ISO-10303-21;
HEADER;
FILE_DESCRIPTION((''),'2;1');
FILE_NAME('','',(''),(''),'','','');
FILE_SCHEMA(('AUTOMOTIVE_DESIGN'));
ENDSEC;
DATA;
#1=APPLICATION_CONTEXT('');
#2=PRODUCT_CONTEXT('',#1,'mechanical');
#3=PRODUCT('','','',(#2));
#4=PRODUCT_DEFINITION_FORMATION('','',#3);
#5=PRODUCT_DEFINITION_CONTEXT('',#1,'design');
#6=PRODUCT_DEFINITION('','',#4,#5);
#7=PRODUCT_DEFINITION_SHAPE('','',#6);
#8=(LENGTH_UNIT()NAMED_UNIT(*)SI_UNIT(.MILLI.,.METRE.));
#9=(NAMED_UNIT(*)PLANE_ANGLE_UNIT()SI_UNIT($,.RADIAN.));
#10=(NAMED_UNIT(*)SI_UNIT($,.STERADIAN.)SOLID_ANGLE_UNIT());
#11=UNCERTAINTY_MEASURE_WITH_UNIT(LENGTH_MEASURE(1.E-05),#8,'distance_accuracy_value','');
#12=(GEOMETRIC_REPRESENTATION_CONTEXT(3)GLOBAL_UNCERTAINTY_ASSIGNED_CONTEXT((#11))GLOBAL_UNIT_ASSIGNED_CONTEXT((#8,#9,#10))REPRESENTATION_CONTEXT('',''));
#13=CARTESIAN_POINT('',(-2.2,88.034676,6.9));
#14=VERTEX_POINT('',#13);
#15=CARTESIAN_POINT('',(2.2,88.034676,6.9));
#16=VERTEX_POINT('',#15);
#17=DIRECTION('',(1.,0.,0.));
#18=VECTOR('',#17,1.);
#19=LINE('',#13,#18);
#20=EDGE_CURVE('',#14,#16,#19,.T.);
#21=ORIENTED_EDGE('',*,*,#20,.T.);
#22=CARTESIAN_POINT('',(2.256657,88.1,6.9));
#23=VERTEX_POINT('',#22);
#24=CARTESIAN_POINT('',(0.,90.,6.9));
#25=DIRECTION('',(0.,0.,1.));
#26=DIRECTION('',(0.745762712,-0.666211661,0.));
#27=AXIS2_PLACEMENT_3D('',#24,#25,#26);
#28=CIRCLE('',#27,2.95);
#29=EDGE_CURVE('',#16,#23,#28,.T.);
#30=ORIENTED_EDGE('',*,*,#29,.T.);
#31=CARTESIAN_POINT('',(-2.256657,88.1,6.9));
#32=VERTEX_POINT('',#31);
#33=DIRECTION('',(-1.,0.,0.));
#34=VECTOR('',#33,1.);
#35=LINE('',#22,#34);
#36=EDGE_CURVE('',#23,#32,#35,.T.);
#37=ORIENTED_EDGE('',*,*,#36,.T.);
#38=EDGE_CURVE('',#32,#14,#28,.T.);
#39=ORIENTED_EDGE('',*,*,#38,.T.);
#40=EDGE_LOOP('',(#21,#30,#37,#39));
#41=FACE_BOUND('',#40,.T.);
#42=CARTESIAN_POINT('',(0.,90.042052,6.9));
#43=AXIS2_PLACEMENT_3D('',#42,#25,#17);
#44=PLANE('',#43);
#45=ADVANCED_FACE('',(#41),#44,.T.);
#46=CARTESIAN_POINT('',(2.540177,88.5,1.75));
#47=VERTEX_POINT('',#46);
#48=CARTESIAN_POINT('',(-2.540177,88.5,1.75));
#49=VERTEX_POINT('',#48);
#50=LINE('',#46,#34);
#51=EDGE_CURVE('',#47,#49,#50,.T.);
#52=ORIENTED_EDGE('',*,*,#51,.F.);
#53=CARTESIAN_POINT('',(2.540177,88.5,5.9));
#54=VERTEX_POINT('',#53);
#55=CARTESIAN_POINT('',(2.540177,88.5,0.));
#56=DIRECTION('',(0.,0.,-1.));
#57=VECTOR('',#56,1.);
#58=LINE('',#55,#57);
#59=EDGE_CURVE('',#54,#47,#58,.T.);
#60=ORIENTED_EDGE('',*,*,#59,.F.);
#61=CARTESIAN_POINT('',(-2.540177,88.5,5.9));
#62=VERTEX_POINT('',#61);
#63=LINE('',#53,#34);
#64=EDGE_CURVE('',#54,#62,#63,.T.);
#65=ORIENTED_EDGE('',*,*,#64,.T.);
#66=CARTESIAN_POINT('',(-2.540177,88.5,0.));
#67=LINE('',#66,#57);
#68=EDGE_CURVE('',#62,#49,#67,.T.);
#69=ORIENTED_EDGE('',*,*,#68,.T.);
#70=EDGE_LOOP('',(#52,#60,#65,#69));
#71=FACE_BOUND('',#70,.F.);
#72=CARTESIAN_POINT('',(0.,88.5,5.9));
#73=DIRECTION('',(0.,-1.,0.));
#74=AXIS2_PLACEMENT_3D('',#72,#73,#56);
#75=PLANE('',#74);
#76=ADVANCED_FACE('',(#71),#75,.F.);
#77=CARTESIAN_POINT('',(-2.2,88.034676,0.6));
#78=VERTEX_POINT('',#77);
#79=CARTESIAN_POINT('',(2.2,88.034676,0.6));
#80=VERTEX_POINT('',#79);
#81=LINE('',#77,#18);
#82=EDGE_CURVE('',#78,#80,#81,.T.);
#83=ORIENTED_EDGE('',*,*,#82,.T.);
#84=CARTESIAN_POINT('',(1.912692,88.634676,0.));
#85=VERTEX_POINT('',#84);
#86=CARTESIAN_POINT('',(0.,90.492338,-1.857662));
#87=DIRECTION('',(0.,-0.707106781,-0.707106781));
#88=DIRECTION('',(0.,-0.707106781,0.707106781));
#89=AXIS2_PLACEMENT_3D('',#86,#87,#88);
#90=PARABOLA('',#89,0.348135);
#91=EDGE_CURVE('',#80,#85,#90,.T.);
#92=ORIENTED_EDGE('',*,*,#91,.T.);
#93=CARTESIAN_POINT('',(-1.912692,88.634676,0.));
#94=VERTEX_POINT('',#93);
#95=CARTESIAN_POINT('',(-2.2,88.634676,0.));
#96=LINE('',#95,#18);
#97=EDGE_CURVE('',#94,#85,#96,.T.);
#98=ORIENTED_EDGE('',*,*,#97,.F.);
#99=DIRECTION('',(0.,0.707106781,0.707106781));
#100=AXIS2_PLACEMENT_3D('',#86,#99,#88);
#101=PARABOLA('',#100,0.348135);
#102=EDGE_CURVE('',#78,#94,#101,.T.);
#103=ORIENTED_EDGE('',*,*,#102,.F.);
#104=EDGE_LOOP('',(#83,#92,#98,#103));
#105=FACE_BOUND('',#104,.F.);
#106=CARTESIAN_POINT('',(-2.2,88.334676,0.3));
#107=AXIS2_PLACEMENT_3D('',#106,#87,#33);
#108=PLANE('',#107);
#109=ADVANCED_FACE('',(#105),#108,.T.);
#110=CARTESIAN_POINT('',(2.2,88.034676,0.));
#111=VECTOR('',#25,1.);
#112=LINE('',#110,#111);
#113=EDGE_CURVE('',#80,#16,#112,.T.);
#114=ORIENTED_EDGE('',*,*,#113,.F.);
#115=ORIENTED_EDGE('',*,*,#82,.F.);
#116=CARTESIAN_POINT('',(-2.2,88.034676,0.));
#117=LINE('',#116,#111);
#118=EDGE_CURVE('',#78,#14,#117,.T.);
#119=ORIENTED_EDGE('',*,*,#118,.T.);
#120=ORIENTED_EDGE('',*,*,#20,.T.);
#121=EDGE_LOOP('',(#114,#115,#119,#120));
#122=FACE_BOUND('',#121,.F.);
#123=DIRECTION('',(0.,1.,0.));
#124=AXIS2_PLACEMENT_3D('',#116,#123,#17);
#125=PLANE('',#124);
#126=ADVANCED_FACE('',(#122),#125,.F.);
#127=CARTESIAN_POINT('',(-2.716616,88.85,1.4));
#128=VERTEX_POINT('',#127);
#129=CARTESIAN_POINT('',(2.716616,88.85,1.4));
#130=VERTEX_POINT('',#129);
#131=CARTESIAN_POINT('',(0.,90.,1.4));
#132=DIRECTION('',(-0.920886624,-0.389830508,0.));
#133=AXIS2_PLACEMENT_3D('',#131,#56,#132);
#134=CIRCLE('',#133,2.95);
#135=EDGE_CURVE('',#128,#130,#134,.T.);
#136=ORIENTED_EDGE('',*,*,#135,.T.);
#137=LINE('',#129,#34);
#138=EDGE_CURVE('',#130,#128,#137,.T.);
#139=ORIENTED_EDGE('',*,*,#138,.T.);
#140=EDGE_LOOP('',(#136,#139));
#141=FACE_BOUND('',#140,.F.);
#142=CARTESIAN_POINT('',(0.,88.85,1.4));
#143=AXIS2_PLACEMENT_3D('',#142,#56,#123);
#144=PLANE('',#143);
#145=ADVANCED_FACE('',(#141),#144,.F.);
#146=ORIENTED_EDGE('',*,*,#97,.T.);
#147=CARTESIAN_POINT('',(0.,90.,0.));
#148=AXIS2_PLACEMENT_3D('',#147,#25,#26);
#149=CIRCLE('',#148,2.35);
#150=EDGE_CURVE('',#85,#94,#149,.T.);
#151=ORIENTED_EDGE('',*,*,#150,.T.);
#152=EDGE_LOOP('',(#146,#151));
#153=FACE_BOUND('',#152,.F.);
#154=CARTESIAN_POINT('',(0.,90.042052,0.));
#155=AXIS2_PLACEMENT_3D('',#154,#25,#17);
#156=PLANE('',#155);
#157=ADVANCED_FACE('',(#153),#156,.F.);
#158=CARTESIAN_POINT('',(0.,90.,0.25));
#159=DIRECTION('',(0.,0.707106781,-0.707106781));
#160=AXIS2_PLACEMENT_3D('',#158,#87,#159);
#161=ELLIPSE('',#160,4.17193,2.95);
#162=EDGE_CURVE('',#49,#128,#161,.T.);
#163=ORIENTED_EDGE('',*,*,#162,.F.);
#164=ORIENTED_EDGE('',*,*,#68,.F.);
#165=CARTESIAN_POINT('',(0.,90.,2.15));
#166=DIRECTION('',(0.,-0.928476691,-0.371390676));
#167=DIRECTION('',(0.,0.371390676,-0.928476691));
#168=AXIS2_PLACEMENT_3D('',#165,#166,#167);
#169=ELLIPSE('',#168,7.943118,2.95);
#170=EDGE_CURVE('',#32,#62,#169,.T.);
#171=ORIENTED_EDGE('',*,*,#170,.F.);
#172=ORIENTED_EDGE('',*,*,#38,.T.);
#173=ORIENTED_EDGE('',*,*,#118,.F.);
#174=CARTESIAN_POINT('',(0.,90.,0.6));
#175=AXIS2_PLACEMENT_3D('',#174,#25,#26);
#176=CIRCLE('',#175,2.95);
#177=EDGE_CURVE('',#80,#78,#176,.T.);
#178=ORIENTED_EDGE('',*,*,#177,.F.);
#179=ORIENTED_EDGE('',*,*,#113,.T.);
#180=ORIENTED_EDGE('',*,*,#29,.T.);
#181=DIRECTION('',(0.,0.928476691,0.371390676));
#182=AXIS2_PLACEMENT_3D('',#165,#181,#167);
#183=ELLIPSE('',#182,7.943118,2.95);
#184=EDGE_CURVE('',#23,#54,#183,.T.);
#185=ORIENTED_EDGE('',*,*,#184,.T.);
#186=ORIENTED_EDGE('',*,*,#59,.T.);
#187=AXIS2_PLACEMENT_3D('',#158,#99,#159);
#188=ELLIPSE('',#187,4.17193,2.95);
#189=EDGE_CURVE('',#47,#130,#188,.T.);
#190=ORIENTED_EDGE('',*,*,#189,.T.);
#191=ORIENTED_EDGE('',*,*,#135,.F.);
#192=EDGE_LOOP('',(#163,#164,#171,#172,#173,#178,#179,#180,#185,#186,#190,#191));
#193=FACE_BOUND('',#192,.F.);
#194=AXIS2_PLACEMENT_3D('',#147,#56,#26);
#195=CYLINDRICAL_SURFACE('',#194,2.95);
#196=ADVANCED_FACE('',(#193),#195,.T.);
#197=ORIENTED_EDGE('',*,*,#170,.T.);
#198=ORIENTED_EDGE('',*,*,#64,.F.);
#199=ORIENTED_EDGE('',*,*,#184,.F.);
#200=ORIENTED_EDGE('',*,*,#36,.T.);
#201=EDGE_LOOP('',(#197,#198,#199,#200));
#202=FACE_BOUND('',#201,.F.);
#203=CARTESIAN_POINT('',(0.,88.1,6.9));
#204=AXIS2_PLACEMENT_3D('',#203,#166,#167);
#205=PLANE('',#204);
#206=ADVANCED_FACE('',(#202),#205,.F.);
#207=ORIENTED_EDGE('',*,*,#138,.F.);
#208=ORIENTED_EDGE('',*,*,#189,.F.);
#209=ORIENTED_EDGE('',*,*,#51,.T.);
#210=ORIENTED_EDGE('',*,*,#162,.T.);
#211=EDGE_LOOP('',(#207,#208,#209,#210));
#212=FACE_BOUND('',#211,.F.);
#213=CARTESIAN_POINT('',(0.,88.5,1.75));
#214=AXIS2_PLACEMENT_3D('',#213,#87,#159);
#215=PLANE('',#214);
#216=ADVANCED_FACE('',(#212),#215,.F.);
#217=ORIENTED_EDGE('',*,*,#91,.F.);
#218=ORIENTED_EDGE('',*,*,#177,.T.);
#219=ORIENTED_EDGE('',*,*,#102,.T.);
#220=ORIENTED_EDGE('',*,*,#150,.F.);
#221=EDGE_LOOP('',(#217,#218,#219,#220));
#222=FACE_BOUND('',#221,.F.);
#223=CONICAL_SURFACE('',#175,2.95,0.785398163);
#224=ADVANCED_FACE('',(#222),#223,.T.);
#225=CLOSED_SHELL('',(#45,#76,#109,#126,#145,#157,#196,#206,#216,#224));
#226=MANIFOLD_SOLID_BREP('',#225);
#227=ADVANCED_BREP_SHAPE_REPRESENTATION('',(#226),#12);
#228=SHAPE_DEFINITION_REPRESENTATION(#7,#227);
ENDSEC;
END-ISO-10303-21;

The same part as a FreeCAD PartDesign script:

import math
import FreeCAD as App
import Part
import Sketcher

V = App.Vector
Q = App.Units.Quantity


def edges_at(feature, points):
    """Names of the edges that pass closest to the given points."""
    edges = feature.Shape.Edges
    near = lambda p: min(range(len(edges)), key=lambda i: edges[i].distToShape(Part.Vertex(*p))[0])
    return sorted({f"Edge{near(p) + 1}" for p in points})


def add_polygon(sketch, points):
    """Adds a closed chain of lines whose ends are joined by coincident constraints."""
    first, n = sketch.GeometryCount, len(points)
    for a, b in zip(points, points[1:] + points[:1]):
        sketch.addGeometry(Part.LineSegment(App.Vector(*a, 0), App.Vector(*b, 0)), False)
    for i in range(n):
        sketch.addConstraint(Sketcher.Constraint("Coincident", first + i, 2, first + (i + 1) % n, 1))

doc = App.newDocument("Part")
body = doc.addObject("PartDesign::Body", "Body")

sketch1 = body.newObject("Sketcher::SketchObject", "Sketch")
sketch1.AttachmentSupport = (doc.getObject("XY_Plane"), [""])
sketch1.MapMode = "FlatFace"
sketch1.addGeometry(Part.ArcOfCircle(Part.Circle(V(0, 0, 0), V(0, 0, 1), 2.95), math.radians(-41.775348), math.radians(221.775348)), False)
sketch1.addGeometry(Part.LineSegment(V(-2.2, -1.965324, 0), V(2.2, -1.965324, 0)), False)
sketch1.addConstraint(Sketcher.Constraint("Coincident", 0, 1, 1, 2))
sketch1.addConstraint(Sketcher.Constraint("Coincident", 1, 1, 0, 2))
sketch1.addConstraint(Sketcher.Constraint("Horizontal", 1))
sketch1.addConstraint(Sketcher.Constraint("Coincident", 0, 3, -1, 1))
sketch1.addConstraint(Sketcher.Constraint("Radius", 0, Q("2.95 mm")))
sketch1.addConstraint(Sketcher.Constraint("DistanceX", 1, 1, 1, 2, Q("4.4 mm")))
pad1 = body.newObject("PartDesign::Pad", "Pad")
pad1.Profile = sketch1
pad1.Length = 6.9

sketch2 = body.newObject("Sketcher::SketchObject", "Sketch001")
sketch2.AttachmentSupport = (doc.getObject("YZ_Plane"), [""])
sketch2.MapMode = "FlatFace"
add_polygon(sketch2, [(-1.9, 6.9), (-1.5, 5.9), (-1.5, 1.75), (-1.15, 1.4), (5, 1.4), (5, 6.9)])
sketch2.addConstraint(Sketcher.Constraint("Vertical", 1))
sketch2.addConstraint(Sketcher.Constraint("Horizontal", 3))
sketch2.addConstraint(Sketcher.Constraint("Vertical", 4))
sketch2.addConstraint(Sketcher.Constraint("Horizontal", 5))
sketch2.addConstraint(Sketcher.Constraint("Angle", 2, Q("-45 deg")))
sketch2.addConstraint(Sketcher.Constraint("DistanceX", 5, 2, 5, 1, Q("6.9 mm")))
sketch2.addConstraint(Sketcher.Constraint("DistanceY", 4, 1, 4, 2, Q("5.5 mm")))
sketch2.addConstraint(Sketcher.Constraint("DistanceX", -1, 1, 3, 2, Q("5 mm")))
sketch2.addConstraint(Sketcher.Constraint("DistanceY", 0, 2, 4, 2, Q("1 mm")))
sketch2.addConstraint(Sketcher.Constraint("DistanceX", 3, 1, 3, 2, Q("6.15 mm")))
sketch2.addConstraint(Sketcher.Constraint("DistanceY", 1, 2, 1, 1, Q("4.15 mm")))
sketch2.addConstraint(Sketcher.Constraint("DistanceY", -1, 1, 0, 2, Q("5.9 mm")))
pocket1 = body.newObject("PartDesign::Pocket", "Pocket")
pocket1.Profile = sketch2
pocket1.Type = "ThroughAll"
pocket1.Midplane = True
doc.recompute()

chamfer = body.newObject("PartDesign::Chamfer", "Chamfer")
chamfer.Base = (pocket1, edges_at(pocket1, [(0, 2.95, 0), (0, -1.965, 0)]))
chamfer.Size = 0.6
body2 = doc.addObject("PartDesign::Body", "Body001")
doc.recompute()

body.Placement = App.Placement(V(0, 78, 0), App.Rotation(V(0, 0, 1), 0))
boolean = body2.newObject("PartDesign::Boolean", "Boolean")
boolean.Type = "Fuse"
boolean.addObjects([body])
body3 = doc.addObject("PartDesign::Body", "Body002")
doc.recompute()

body2.Placement = App.Placement(V(0, -78, 0), App.Rotation(V(0, 0, 1), 0))
boolean2 = body3.newObject("PartDesign::Boolean", "Boolean001")
boolean2.Type = "Fuse"
boolean2.addObjects([body2])
body4 = doc.addObject("PartDesign::Body", "Body003")
doc.recompute()

body3.Placement = App.Placement(V(0, 90, 0), App.Rotation(V(0, 0, 1), 0))
boolean3 = body4.newObject("PartDesign::Boolean", "Boolean002")
boolean3.Type = "Fuse"
boolean3.addObjects([body3])

doc.recompute()
